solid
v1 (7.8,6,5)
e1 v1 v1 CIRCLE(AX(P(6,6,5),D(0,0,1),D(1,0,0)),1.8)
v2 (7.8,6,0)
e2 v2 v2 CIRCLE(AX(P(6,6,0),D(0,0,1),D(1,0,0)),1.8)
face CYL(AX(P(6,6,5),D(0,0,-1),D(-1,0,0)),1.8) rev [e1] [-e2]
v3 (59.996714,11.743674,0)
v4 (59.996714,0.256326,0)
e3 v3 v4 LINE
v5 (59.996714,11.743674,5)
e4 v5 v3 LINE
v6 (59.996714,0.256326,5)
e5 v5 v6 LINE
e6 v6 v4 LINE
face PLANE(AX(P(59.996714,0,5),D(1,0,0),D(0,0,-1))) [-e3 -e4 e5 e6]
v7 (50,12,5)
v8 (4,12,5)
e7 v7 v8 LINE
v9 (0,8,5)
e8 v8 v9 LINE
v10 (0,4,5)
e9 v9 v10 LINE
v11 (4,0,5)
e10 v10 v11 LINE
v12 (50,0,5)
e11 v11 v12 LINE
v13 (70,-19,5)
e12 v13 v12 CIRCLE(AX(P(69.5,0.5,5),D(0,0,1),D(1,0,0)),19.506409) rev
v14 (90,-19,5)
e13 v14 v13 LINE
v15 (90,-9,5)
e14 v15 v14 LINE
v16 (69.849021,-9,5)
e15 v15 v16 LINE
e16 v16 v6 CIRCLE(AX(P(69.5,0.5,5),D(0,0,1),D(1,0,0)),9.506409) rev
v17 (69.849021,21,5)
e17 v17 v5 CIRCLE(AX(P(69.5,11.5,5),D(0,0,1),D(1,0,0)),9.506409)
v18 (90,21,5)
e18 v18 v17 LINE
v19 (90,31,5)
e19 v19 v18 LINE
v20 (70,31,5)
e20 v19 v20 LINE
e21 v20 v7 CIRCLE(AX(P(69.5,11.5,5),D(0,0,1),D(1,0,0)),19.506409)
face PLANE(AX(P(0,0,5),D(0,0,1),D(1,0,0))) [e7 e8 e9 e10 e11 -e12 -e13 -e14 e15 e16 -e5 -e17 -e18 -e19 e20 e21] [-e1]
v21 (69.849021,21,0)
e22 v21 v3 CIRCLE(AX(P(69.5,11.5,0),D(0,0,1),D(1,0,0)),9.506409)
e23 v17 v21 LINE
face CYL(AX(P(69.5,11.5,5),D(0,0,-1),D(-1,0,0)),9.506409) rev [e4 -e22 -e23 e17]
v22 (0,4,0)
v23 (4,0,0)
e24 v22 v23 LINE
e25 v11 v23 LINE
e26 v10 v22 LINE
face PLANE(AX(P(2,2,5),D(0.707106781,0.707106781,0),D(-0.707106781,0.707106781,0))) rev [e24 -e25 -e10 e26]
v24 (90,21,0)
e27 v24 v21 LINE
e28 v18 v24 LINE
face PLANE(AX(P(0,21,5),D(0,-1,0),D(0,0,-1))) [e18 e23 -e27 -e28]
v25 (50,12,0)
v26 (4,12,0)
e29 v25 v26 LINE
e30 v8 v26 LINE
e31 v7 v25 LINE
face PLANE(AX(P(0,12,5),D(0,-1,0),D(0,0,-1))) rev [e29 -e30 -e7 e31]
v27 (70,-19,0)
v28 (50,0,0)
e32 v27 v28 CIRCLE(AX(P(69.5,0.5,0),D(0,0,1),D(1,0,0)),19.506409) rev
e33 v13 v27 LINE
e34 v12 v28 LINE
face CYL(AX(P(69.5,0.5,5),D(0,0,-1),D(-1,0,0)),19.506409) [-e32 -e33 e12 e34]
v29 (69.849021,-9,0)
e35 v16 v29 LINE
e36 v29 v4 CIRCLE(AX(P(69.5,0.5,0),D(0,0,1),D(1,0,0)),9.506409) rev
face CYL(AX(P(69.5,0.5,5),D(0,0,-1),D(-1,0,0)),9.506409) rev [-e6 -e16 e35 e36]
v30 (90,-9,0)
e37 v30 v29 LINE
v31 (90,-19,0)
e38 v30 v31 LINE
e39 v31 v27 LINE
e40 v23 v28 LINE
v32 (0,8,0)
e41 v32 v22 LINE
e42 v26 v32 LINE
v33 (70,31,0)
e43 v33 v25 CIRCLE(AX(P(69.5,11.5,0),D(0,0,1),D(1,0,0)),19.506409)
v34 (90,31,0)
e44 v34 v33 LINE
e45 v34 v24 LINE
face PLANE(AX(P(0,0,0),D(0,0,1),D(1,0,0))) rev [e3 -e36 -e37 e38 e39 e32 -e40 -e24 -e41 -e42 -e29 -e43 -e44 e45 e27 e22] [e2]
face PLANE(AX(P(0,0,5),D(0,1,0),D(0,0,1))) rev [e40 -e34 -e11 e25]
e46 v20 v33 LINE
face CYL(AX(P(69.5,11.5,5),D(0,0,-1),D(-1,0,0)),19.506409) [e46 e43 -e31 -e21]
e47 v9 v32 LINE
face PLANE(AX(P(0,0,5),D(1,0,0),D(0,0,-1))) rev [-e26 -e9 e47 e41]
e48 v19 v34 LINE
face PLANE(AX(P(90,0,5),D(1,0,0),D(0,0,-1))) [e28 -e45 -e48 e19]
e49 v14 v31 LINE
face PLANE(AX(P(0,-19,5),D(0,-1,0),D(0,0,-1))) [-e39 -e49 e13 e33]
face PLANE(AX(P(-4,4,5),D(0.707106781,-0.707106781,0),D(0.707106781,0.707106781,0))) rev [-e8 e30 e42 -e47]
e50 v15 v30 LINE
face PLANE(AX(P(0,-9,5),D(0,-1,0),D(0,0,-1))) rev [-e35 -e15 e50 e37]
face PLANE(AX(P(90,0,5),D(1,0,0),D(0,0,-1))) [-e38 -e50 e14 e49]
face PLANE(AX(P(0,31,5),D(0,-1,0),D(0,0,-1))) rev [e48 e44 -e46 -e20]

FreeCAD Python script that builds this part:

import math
import FreeCAD as App
import Part
import Sketcher
from FreeCAD import Vector

doc = App.newDocument("Part")
body = doc.addObject("PartDesign::Body", "Body")

sketch1 = doc.addObject("Sketcher::SketchObject", "Sketch")
body.addObject(sketch1)
sketch1.AttachmentSupport = (doc.XY_Plane, [""])
sketch1.MapMode = "FlatFace"
sketch1.addGeometry([
    Part.LineSegment(Vector(4, 0, 0), Vector(50, 0, 0)),
    Part.ArcOfCircle(Part.Circle(Vector(69.5, 0.5, 0), Vector(0, 0, 1), 19.5), math.radians(-179), math.radians(-89)),
    Part.LineSegment(Vector(70, -19, 0), Vector(90, -19, 0)),
    Part.LineSegment(Vector(90, -19, 0), Vector(90, -9, 0)),
    Part.LineSegment(Vector(90, -9, 0), Vector(69.8, -9, 0)),
    Part.ArcOfCircle(Part.Circle(Vector(69.5, 0.5, 0), Vector(0, 0, 1), 9.5), math.radians(-179), math.radians(-88)),
    Part.LineSegment(Vector(60, 0.3, 0), Vector(60, 11.7, 0)),
    Part.ArcOfCircle(Part.Circle(Vector(69.5, 11.5, 0), Vector(0, 0, 1), 9.5), math.radians(88), math.radians(179)),
    Part.LineSegment(Vector(69.8, 21, 0), Vector(90, 21, 0)),
    Part.LineSegment(Vector(90, 21, 0), Vector(90, 31, 0)),
    Part.LineSegment(Vector(90, 31, 0), Vector(70, 31, 0)),
    Part.ArcOfCircle(Part.Circle(Vector(69.5, 11.5, 0), Vector(0, 0, 1), 19.5), math.radians(89), math.radians(179)),
    Part.LineSegment(Vector(50, 12, 0), Vector(4, 12, 0)),
    Part.LineSegment(Vector(4, 12, 0), Vector(0, 8, 0)),
    Part.LineSegment(Vector(0, 8, 0), Vector(0, 4, 0)),
    Part.LineSegment(Vector(0, 4, 0), Vector(4, 0, 0)),
    Part.Circle(Vector(6, 6, 0), Vector(0, 0, 1), 1.8),
], False)
sketch1.addConstraint([
    Sketcher.Constraint("Coincident", 0, 2, 1, 1),
    Sketcher.Constraint("Coincident", 1, 2, 2, 1),
    Sketcher.Constraint("Coincident", 2, 2, 3, 1),
    Sketcher.Constraint("Coincident", 3, 2, 4, 1),
    Sketcher.Constraint("Coincident", 4, 2, 5, 2),
    Sketcher.Constraint("Coincident", 5, 1, 6, 1),
    Sketcher.Constraint("Coincident", 6, 2, 7, 2),
    Sketcher.Constraint("Coincident", 7, 1, 8, 1),
    Sketcher.Constraint("Coincident", 8, 2, 9, 1),
    Sketcher.Constraint("Coincident", 9, 2, 10, 1),
    Sketcher.Constraint("Coincident", 10, 2, 11, 1),
    Sketcher.Constraint("Coincident", 11, 2, 12, 1),
    Sketcher.Constraint("Coincident", 12, 2, 13, 1),
    Sketcher.Constraint("Coincident", 13, 2, 14, 1),
    Sketcher.Constraint("Coincident", 14, 2, 15, 1),
    Sketcher.Constraint("Coincident", 15, 2, 0, 1),
    Sketcher.Constraint("Horizontal", 0),
    Sketcher.Constraint("Horizontal", 2),
    Sketcher.Constraint("Vertical", 3),
    Sketcher.Constraint("Horizontal", 4),
    Sketcher.Constraint("Vertical", 6),
    Sketcher.Constraint("Horizontal", 8),
    Sketcher.Constraint("Vertical", 9),
    Sketcher.Constraint("Horizontal", 10),
    Sketcher.Constraint("Horizontal", 12),
    Sketcher.Constraint("Vertical", 14),
    Sketcher.Constraint("Coincident", 5, 3, 1, 3),
    Sketcher.Constraint("Coincident", 11, 3, 7, 3),
    Sketcher.Constraint("Equal", 5, 7),
    Sketcher.Constraint("Equal", 1, 11),
    Sketcher.Constraint("PointOnObject", 0, 2, -1),
    Sketcher.Constraint("PointOnObject", 13, 2, -2),
    Sketcher.Constraint("Perpendicular", 13, 15),
    Sketcher.Constraint("Vertical", 5, 3, 7, 3),
    Sketcher.Constraint("Vertical", 4, 2, 7, 1),
    Sketcher.Constraint("Vertical", 3, 2, 8, 2),
    Sketcher.Constraint("Vertical", 1, 2, 10, 2),
    Sketcher.Constraint("Vertical", 0, 2, 11, 2),
    Sketcher.Constraint("Vertical", 12, 2, 15, 2),
    Sketcher.Constraint("Equal", 13, 15),
    Sketcher.Constraint("Diameter", 16, 3.6),
    Sketcher.Constraint("DistanceX", 0, 1, 0, 2, 46.0),
    Sketcher.Constraint("DistanceX", 2, 1, 2, 2, 20.0),
    Sketcher.Constraint("DistanceY", 3, 1, 3, 2, 10.0),
    Sketcher.Constraint("DistanceY", 14, 2, 14, 1, 4.0),
    Sketcher.Constraint("DistanceX", -1, 1, 16, 3, 6.0),
    Sketcher.Constraint("DistanceY", -1, 1, 16, 3, 6.0),
    Sketcher.Constraint("DistanceX", -1, 1, 0, 2, 50.0),
    Sketcher.Constraint("DistanceX", -1, 1, 1, 2, 70.0),
    Sketcher.Constraint("DistanceY", 1, 2, -1, 1, 19.0),
    Sketcher.Constraint("DistanceY", 5, 3, 7, 3, 11.0),
    Sketcher.Constraint("Radius", 5, 9.506409),
    Sketcher.Constraint("DistanceY", 6, 1, 6, 2, 11.487348),
])
pad1 = doc.addObject("PartDesign::Pad", "Pad")
body.addObject(pad1)
pad1.Profile = sketch1
pad1.Length = 5

doc.recompute()
